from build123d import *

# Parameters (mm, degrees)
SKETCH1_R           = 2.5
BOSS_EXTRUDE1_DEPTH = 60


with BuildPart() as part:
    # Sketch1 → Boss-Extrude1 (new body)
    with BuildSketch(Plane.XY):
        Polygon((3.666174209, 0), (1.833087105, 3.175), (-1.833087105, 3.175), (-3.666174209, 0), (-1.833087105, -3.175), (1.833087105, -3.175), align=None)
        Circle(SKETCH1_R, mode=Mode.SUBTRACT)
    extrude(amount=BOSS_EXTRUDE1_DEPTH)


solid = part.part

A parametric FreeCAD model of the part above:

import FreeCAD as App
import Part
import Sketcher

V = App.Vector
Q = App.Units.Quantity


def add_polygon(sketch, points):
    """Adds a closed chain of lines whose ends are joined by coincident constraints."""
    first, n = sketch.GeometryCount, len(points)
    for a, b in zip(points, points[1:] + points[:1]):
        sketch.addGeometry(Part.LineSegment(App.Vector(*a, 0), App.Vector(*b, 0)), False)
    for i in range(n):
        sketch.addConstraint(Sketcher.Constraint("Coincident", first + i, 2, first + (i + 1) % n, 1))

doc = App.newDocument("Part")
body = doc.addObject("PartDesign::Body", "Body")

sketch1 = doc.addObject("Sketcher::SketchObject", "Sketch")
body.addObject(sketch1)
sketch1.AttachmentSupport = (doc.XY_Plane, [""])
sketch1.MapMode = "FlatFace"
add_polygon(sketch1, [(3.7, 0), (1.8, 3.2), (-1.8, 3.2), (-3.7, 0), (-1.8, -3.2), (1.8, -3.2)])
sketch1.addGeometry(Part.Circle(V(0, 0, 0), V(0, 0, 1), 2.5), False)
sketch1.addConstraint([
    Sketcher.Constraint("Horizontal", 1),
    Sketcher.Constraint("Horizontal", 4),
    Sketcher.Constraint("Coincident", 6, 3, -1, 1),
    Sketcher.Constraint("Symmetric", 0, 2, 3, 2, -1, 1),
    Sketcher.Constraint("Symmetric", 2, 2, 5, 2, -1, 1),
    Sketcher.Constraint("PointOnObject", 2, 2, -1),
    Sketcher.Constraint("Parallel", 2, 5),
    Sketcher.Constraint("Vertical", 1, 2, 3, 2),
    Sketcher.Constraint("Diameter", 6, Q("5 mm")),
    Sketcher.Constraint("Angle", 0, Q("120 deg")),
    Sketcher.Constraint("DistanceY", 3, 2, 1, 2, Q("6.35 mm")),
    Sketcher.Constraint("DistanceX", 1, 2, 1, 1, Q("3.666174 mm")),
])
pad1 = doc.addObject("PartDesign::Pad", "Pad")
body.addObject(pad1)
pad1.Profile = sketch1
pad1.Length = 60

doc.recompute()
